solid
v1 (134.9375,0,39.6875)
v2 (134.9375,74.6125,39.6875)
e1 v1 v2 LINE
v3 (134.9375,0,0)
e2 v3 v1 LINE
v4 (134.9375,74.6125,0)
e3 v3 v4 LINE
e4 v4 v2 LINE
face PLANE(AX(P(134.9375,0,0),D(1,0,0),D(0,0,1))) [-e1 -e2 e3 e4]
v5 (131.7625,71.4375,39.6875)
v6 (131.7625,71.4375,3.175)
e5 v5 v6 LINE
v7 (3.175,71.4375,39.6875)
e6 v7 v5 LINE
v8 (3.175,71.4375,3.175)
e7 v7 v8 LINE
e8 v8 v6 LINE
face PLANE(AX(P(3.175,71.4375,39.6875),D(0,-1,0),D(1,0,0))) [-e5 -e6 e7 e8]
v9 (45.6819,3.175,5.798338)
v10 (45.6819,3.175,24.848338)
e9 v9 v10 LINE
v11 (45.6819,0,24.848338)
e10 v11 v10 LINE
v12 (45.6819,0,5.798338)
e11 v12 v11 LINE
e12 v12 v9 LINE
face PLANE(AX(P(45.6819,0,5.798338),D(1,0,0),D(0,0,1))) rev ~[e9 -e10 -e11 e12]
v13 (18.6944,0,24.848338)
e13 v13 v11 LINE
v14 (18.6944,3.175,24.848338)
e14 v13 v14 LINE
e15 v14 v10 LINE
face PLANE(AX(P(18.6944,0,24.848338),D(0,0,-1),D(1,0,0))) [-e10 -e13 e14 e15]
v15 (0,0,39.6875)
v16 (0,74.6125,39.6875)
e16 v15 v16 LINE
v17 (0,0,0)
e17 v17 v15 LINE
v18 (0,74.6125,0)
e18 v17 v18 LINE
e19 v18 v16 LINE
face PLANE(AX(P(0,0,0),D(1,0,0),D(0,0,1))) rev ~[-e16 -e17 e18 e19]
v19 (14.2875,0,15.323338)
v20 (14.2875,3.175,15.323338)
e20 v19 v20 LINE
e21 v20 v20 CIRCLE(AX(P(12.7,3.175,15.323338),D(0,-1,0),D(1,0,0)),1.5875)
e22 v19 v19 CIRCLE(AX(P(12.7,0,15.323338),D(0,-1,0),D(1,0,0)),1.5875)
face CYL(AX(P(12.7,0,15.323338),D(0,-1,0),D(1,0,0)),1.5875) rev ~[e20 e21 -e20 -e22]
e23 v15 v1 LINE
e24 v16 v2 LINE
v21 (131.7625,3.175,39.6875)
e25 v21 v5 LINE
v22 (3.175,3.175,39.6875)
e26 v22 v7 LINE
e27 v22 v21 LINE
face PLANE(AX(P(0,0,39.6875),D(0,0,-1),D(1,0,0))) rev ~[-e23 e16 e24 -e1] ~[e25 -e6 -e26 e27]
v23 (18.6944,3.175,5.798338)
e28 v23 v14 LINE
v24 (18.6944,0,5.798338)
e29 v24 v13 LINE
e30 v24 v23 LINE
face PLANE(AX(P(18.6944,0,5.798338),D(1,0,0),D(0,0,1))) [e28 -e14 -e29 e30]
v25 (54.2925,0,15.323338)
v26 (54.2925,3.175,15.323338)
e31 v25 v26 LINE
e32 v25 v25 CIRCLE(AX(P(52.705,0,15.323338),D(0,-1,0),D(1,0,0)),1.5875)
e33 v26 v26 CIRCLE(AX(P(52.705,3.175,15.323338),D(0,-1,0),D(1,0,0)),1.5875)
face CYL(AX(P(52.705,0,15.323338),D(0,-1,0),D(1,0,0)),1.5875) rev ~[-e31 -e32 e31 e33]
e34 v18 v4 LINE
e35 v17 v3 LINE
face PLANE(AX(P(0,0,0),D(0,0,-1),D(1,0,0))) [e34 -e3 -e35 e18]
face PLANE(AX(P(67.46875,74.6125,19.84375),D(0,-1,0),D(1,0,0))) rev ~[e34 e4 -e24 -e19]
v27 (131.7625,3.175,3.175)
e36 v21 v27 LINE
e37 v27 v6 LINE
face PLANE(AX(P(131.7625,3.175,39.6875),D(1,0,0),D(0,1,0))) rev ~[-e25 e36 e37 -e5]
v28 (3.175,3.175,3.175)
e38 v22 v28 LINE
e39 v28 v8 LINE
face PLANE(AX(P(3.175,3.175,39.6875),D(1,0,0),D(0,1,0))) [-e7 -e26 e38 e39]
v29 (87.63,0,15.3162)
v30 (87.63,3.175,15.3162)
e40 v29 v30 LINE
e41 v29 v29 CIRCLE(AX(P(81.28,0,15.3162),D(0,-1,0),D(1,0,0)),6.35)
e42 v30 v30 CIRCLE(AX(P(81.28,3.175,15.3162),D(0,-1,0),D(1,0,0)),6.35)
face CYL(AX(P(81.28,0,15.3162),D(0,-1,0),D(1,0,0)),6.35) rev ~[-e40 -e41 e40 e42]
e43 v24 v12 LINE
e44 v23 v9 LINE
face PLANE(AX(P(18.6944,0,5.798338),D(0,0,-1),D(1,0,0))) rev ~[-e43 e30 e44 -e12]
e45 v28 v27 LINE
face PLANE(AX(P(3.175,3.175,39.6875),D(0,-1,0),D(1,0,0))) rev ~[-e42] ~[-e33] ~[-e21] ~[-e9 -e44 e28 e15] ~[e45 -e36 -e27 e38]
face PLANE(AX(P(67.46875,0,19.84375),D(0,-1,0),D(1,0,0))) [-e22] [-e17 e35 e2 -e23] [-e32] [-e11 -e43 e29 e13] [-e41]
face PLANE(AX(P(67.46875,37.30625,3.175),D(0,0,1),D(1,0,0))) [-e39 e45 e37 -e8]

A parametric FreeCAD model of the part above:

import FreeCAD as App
import Part
import Sketcher
from FreeCAD import Vector
Q = App.Units.Quantity


def add_polygon(sketch, points):
    """Adds a closed chain of lines whose ends are joined by coincident constraints."""
    first, n = sketch.GeometryCount, len(points)
    for a, b in zip(points, points[1:] + points[:1]):
        sketch.addGeometry(Part.LineSegment(App.Vector(*a, 0), App.Vector(*b, 0)), False)
    for i in range(n):
        sketch.addConstraint(Sketcher.Constraint("Coincident", first + i, 2, first + (i + 1) % n, 1))

doc = App.newDocument("Part")
body = doc.addObject("PartDesign::Body", "Body")

# Sketch on XZ plane
sketch1 = body.newObject("Sketcher::SketchObject", "Sketch")
sketch1.AttachmentSupport = (doc.getObject("XZ_Plane"), [""])
sketch1.MapMode = "FlatFace"
add_polygon(sketch1, [(0, 40), (0, 0), (135, 0), (135, 40)])  # lines 0-3
sketch1.addConstraint([
    Sketcher.Constraint("Vertical", 0),
    Sketcher.Constraint("Horizontal", 1),
    Sketcher.Constraint("Vertical", 2),
    Sketcher.Constraint("Horizontal", 3),
    Sketcher.Constraint("Coincident", 0, 2, -1, 1),
    Sketcher.Constraint("DistanceX", 1, 1, 1, 2, Q("5.3125 in")),
    Sketcher.Constraint("DistanceY", 0, 2, 0, 1, Q("1.5625 in")),
])
pad1 = body.newObject("PartDesign::Pad", "Pad")
pad1.Profile = sketch1
pad1.Length = Q("2.9375 in")
pad1.Reversed = True

# Sketch on XY plane
sketch2 = body.newObject("Sketcher::SketchObject", "Sketch001")
sketch2.AttachmentSupport = (doc.getObject("XY_Plane"), [""])
sketch2.MapMode = "FlatFace"
sketch2.AttachmentOffset = App.Placement(Vector(0, 0, 1.5625 * 25.4), App.Rotation())
add_polygon(sketch2, [(3, 71), (3, 3), (132, 3), (132, 71)])  # lines 0-3
sketch2.addConstraint([
    Sketcher.Constraint("Vertical", 0),
    Sketcher.Constraint("Horizontal", 1),
    Sketcher.Constraint("Vertical", 2),
    Sketcher.Constraint("Horizontal", 3),
    Sketcher.Constraint("DistanceX", 1, 1, 1, 2, Q("5.0625 in")),
    Sketcher.Constraint("DistanceY", 0, 2, 0, 1, Q("2.6875 in")),
    Sketcher.Constraint("DistanceX", -1, 1, 0, 2, Q("0.125 in")),
    Sketcher.Constraint("DistanceY", -1, 1, 0, 2, Q("0.125 in")),
])
pocket1 = body.newObject("PartDesign::Pocket", "Pocket")
pocket1.Profile = sketch2
pocket1.Length = Q("1.4375 in")

# Sketch on XZ plane
sketch3 = body.newObject("Sketcher::SketchObject", "Sketch002")
sketch3.AttachmentSupport = (doc.getObject("XZ_Plane"), [""])
sketch3.MapMode = "FlatFace"
sketch3.addGeometry(Part.Circle(Vector(12.7, 15.3, 0), Vector(0, 0, 1), 1.6), False)  # 0
sketch3.addGeometry(Part.Circle(Vector(52.7, 15.3, 0), Vector(0, 0, 1), 1.6), False)  # 1
add_polygon(sketch3, [(18.7, 24.8), (18.7, 5.8), (45.7, 5.8), (45.7, 24.8)])  # lines 2-5
sketch3.addConstraint([
    Sketcher.Constraint("Vertical", 2),
    Sketcher.Constraint("Horizontal", 3),
    Sketcher.Constraint("Vertical", 4),
    Sketcher.Constraint("Horizontal", 5),
    Sketcher.Constraint("Equal", 0, 1),
    Sketcher.Constraint("Horizontal", 0, 3, 1, 3),
    Sketcher.Constraint("Diameter", 0, Q("0.125 in")),
    Sketcher.Constraint("DistanceY", 2, 2, 2, 1, Q("0.75 in")),
    Sketcher.Constraint("DistanceX", -1, 1, 0, 3, Q("0.5 in")),
    Sketcher.Constraint("DistanceX", 3, 1, 3, 2, Q("1.0625 in")),
    Sketcher.Constraint("DistanceX", -1, 1, 1, 3, Q("2.075 in")),
    Sketcher.Constraint("DistanceX", -1, 1, 2, 2, Q("0.736 in")),
    Sketcher.Constraint("DistanceY", 2, 2, 0, 3, Q("0.375 in")),
    Sketcher.Constraint("DistanceY", -1, 1, 2, 2, Q("5.798338 mm")),
])
pocket2 = body.newObject("PartDesign::Pocket", "Pocket001")
pocket2.Profile = sketch3
pocket2.Length = Q("0.25 in")

# Sketch on XZ plane
sketch4 = body.newObject("Sketcher::SketchObject", "Sketch003")
sketch4.AttachmentSupport = (doc.getObject("XZ_Plane"), [""])
sketch4.MapMode = "FlatFace"
sketch4.addGeometry(Part.Circle(Vector(81, 15, 0), Vector(0, 0, 1), 6), False)
sketch4.addConstraint([
    Sketcher.Constraint("Diameter", 0, Q("0.5 in")),
    Sketcher.Constraint("DistanceX", -1, 1, 0, 3, Q("3.2 in")),
    Sketcher.Constraint("DistanceY", -1, 1, 0, 3, Q("0.603 in")),
])
pocket3 = body.newObject("PartDesign::Pocket", "Pocket002")
pocket3.Profile = sketch4
pocket3.Length = Q("0.25 in")

doc.recompute()
